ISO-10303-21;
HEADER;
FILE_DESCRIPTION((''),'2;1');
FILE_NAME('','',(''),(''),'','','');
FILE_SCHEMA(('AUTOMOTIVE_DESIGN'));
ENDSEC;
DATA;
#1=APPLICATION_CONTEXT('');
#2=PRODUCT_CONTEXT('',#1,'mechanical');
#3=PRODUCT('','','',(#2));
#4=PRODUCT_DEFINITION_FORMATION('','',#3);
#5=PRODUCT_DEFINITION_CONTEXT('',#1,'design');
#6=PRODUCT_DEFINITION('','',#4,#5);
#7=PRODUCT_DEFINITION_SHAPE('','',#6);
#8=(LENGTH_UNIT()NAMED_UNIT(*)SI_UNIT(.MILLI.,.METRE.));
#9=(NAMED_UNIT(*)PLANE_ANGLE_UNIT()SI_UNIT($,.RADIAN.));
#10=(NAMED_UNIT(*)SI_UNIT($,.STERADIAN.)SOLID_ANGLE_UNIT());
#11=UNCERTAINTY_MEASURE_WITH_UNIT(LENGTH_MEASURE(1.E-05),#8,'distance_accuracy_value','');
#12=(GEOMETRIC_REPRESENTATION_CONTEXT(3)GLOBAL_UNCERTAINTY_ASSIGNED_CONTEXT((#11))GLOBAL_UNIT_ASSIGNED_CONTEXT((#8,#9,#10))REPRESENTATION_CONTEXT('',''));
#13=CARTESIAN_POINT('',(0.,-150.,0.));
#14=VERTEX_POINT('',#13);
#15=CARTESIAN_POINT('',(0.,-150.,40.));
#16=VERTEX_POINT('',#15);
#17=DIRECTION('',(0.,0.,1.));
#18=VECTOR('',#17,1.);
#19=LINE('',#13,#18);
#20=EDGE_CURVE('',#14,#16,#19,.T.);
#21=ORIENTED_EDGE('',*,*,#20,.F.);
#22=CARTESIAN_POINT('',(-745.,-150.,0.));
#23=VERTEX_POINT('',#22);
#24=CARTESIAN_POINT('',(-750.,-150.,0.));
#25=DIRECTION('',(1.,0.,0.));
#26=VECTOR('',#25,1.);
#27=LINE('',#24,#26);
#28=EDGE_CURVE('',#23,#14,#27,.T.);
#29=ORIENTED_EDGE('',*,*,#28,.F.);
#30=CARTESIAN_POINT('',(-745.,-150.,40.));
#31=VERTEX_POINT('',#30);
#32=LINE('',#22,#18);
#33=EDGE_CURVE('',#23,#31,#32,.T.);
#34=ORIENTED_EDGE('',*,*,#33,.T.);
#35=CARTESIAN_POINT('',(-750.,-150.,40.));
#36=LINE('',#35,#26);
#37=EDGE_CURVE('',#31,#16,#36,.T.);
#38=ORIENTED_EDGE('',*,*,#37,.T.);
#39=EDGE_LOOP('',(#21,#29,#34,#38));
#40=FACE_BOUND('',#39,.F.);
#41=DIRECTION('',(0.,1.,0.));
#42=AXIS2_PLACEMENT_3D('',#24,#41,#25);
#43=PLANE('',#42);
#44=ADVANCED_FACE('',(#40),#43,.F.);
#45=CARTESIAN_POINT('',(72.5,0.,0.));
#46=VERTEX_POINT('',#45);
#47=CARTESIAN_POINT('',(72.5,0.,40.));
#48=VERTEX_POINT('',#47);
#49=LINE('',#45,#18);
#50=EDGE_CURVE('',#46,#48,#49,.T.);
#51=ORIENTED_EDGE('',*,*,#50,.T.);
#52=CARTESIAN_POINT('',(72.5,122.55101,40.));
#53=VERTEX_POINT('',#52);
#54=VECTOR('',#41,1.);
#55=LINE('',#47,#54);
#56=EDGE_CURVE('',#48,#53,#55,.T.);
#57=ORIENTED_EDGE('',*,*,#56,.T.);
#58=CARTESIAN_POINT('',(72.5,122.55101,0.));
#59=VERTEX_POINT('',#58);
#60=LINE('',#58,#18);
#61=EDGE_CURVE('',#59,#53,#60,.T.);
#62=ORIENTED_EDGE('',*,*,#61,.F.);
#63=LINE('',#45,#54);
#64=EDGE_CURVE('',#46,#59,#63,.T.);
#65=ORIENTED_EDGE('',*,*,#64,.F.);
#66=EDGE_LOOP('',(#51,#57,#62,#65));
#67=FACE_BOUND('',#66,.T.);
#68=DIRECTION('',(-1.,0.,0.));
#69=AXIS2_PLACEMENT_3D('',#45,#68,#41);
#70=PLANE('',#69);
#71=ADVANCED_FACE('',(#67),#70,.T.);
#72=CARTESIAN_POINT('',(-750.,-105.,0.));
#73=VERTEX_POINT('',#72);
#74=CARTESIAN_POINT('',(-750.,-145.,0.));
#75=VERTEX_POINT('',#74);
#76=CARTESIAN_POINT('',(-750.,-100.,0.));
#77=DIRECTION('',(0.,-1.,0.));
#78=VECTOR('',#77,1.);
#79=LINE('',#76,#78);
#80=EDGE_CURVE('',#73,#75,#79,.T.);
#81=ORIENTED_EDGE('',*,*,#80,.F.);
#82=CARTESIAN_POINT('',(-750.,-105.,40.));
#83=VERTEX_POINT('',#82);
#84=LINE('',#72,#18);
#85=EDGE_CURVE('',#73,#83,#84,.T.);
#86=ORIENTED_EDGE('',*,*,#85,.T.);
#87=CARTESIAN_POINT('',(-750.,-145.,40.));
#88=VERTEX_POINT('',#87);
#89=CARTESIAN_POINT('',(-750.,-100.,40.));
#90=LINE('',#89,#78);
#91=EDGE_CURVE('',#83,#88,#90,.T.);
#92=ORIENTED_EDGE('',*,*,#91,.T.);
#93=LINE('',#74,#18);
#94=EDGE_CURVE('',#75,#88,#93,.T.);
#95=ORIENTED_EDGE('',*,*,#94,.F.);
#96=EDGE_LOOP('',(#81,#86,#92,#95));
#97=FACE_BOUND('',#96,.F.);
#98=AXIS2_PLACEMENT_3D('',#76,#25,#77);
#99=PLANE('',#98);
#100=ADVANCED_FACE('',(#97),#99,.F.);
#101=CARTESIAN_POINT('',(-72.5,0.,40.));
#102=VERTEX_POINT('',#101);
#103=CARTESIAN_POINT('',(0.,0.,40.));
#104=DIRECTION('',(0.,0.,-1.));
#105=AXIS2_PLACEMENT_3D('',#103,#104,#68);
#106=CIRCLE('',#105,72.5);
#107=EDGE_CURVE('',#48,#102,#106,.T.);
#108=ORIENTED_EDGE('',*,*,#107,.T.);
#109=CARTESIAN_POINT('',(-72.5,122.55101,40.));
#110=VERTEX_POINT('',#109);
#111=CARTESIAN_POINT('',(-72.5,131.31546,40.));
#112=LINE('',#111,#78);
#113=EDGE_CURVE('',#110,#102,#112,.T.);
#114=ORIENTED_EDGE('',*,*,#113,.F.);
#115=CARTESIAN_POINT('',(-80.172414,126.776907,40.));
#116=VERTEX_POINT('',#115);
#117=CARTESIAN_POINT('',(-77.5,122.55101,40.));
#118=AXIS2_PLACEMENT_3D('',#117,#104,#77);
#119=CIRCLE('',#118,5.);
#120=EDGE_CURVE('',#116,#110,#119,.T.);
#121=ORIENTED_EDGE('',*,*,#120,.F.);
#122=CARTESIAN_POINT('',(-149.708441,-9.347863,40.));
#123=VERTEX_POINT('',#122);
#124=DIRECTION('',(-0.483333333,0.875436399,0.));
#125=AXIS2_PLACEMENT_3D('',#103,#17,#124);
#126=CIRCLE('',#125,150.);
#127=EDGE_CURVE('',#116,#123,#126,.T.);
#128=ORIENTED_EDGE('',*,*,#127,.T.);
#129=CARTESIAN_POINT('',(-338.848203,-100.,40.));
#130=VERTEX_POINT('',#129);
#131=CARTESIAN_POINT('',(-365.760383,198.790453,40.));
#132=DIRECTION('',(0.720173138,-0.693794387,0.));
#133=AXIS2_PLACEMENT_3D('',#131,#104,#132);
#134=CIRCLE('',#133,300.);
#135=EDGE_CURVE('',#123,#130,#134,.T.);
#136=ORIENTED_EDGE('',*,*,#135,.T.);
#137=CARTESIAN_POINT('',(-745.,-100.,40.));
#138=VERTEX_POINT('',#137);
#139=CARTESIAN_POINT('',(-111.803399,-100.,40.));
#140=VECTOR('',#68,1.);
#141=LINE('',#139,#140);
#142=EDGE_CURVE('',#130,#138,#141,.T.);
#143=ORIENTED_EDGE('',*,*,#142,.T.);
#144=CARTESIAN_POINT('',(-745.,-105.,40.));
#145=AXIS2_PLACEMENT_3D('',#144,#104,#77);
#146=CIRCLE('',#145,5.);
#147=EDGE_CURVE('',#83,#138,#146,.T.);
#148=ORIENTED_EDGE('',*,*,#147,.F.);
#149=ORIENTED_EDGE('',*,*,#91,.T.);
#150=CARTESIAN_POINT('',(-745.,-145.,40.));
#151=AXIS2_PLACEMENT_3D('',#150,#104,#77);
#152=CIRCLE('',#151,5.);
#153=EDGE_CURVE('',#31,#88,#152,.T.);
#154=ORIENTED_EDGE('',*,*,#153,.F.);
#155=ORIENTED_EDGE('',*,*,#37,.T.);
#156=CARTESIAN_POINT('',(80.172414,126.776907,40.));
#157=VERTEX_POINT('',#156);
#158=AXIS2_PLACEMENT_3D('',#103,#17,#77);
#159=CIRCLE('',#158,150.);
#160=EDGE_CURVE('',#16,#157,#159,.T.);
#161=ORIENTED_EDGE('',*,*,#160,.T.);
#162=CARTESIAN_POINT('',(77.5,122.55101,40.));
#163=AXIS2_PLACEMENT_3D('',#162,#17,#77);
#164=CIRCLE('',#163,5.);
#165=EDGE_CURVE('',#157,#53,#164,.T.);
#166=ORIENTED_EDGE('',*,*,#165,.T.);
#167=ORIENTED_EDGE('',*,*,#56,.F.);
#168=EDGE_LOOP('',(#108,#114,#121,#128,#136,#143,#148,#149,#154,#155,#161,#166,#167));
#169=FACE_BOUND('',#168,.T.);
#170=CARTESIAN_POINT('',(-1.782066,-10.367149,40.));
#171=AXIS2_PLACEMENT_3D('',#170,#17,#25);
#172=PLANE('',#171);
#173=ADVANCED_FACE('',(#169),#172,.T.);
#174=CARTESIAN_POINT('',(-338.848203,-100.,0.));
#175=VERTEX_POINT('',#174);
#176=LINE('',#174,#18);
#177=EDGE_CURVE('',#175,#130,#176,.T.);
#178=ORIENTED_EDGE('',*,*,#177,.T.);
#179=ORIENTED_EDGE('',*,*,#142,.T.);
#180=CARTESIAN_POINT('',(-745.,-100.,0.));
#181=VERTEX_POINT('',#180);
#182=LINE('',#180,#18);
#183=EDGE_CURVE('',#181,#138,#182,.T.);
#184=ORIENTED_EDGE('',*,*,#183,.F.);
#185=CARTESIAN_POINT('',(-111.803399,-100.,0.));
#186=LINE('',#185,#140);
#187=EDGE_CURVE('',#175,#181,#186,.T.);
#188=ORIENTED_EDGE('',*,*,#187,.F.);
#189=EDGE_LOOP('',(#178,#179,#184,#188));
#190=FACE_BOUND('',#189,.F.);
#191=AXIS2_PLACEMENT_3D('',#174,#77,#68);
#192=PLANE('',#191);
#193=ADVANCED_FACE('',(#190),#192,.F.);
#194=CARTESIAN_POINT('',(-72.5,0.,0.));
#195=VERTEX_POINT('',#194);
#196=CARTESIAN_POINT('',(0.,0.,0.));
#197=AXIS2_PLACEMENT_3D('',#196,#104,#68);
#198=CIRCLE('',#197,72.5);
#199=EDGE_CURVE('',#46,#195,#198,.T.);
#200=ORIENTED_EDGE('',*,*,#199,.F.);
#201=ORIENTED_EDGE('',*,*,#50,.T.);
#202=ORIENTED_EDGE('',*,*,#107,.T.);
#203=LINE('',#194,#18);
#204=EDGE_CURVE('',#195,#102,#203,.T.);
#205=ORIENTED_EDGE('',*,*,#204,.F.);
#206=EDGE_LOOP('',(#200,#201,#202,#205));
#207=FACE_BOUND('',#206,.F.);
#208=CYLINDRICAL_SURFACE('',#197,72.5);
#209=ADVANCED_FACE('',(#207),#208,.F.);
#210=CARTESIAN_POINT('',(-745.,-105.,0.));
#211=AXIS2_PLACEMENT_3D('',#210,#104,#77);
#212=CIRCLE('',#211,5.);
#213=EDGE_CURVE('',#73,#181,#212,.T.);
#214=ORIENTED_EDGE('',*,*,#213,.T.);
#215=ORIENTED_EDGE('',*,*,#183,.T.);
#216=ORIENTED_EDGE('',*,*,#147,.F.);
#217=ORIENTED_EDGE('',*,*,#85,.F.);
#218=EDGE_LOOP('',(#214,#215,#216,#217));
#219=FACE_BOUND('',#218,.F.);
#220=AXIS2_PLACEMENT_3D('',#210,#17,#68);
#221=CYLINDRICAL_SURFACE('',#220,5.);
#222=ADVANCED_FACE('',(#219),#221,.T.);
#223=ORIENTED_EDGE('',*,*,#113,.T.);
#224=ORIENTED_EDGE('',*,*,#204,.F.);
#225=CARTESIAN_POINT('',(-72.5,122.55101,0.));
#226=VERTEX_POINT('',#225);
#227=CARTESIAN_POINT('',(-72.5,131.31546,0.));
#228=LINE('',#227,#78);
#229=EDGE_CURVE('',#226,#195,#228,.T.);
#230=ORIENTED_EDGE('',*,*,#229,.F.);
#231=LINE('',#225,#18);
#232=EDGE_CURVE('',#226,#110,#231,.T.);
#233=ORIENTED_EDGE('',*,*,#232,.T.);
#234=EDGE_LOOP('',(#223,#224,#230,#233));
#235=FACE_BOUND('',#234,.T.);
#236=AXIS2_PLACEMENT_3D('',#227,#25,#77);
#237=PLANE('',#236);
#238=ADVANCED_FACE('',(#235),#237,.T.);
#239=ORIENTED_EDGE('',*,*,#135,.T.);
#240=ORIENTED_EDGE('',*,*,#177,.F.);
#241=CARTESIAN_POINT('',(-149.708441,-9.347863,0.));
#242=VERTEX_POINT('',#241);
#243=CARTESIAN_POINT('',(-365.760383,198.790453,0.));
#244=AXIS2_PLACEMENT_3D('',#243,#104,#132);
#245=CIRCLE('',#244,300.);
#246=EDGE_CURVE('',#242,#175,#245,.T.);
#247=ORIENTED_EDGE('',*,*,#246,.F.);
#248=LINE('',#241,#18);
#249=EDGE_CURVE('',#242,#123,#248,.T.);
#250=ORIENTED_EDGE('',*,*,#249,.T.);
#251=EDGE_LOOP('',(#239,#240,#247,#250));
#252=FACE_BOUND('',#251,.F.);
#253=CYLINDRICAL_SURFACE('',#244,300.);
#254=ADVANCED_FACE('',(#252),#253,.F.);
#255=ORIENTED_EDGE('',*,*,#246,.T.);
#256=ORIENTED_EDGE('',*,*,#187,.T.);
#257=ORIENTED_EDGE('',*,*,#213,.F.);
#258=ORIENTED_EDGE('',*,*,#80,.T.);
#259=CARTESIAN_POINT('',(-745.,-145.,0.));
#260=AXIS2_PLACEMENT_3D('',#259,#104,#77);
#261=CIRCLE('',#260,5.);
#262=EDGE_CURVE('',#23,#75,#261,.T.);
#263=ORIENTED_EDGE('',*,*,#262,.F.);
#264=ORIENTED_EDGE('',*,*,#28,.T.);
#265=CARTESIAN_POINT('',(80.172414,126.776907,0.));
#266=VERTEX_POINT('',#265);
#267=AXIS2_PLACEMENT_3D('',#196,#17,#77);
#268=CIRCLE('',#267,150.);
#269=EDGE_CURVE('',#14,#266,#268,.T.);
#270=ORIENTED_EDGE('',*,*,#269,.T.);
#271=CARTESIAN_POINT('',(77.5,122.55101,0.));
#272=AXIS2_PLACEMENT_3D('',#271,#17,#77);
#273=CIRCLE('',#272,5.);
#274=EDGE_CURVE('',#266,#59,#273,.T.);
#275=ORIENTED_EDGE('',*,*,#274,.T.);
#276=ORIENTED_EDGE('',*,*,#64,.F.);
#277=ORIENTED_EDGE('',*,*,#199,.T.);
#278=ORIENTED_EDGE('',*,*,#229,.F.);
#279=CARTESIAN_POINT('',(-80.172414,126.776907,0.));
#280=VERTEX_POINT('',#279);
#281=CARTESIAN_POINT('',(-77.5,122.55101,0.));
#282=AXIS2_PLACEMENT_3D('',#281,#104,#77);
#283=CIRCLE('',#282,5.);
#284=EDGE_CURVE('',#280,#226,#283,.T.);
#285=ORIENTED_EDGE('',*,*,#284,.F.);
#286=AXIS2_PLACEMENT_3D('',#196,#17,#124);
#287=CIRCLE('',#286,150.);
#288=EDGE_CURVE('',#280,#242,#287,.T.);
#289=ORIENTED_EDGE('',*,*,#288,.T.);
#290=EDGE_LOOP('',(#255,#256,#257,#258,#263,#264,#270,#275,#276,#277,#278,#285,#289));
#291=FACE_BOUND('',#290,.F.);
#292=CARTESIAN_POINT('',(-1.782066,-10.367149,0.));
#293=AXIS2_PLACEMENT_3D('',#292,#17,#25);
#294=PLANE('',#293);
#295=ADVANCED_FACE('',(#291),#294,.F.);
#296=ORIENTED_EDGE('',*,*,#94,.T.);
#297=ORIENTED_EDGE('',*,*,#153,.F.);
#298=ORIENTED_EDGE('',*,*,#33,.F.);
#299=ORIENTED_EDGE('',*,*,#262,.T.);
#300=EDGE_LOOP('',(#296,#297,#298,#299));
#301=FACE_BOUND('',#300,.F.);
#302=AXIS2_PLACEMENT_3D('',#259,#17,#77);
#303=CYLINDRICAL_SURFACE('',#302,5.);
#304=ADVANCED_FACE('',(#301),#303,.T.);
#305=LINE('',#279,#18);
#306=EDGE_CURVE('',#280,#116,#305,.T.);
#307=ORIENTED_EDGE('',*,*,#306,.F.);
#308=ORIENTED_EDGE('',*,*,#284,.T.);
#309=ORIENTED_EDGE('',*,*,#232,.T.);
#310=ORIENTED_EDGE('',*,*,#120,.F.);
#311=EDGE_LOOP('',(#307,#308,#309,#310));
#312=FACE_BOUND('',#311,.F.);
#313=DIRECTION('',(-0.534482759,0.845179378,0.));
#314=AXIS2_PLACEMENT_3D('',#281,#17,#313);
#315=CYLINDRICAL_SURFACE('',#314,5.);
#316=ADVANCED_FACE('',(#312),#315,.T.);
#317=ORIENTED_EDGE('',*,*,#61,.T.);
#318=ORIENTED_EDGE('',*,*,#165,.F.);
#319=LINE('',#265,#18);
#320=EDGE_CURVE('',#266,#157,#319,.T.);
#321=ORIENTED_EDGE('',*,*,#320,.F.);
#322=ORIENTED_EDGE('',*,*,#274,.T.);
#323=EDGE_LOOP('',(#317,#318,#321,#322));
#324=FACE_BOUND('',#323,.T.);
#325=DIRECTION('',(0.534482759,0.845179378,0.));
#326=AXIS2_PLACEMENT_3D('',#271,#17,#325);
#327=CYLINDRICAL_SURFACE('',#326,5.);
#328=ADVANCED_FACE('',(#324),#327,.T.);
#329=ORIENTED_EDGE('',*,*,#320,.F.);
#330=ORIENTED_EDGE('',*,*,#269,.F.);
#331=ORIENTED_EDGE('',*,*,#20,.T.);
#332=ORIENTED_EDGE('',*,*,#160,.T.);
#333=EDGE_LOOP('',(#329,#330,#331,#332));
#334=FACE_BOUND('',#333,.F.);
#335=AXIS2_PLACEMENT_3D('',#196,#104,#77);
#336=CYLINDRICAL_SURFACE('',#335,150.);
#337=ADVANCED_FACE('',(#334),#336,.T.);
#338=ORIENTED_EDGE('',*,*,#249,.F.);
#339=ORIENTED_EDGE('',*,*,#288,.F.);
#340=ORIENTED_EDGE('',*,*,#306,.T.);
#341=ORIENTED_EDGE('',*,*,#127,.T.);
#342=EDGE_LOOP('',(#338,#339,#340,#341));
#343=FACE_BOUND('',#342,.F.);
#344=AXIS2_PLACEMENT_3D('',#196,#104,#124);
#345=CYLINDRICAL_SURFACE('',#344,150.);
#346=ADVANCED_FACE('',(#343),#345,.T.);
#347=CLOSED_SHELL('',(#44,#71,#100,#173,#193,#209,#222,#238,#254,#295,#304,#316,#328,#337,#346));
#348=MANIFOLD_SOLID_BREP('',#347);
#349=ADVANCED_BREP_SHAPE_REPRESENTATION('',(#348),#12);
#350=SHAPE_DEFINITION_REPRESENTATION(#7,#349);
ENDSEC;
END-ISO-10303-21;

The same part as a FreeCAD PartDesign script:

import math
import FreeCAD as App
import Part
import Sketcher
Q = App.Units.Quantity


def edges_at(feature, points):
    """Names of the edges that pass closest to the given points."""
    edges = feature.Shape.Edges
    near = lambda p: min(range(len(edges)), key=lambda i: edges[i].distToShape(Part.Vertex(*p))[0])
    return sorted({f"Edge{near(p) + 1}" for p in points})

doc = App.newDocument("Part")
body = doc.addObject("PartDesign::Body", "Body")

# Sketch on XY plane
sketch1 = body.newObject("Sketcher::SketchObject", "Sketch")
sketch1.AttachmentSupport = (doc.getObject("XY_Plane"), [""])
sketch1.MapMode = "FlatFace"
sketch1.addGeometry([
    Part.LineSegment(App.Vector(-750, -150, 0), App.Vector(0, -150, 0)),  # 0
    Part.ArcOfCircle(Part.Circle(App.Vector(0, 0, 0), App.Vector(0, 0, 1), 150), math.radians(-90), math.radians(118.903335)),  # 1
    Part.ArcOfCircle(Part.Circle(App.Vector(0, 0, 0), App.Vector(0, 0, 1), 150), math.radians(118.903335), math.radians(183.572936)),  # 2
    Part.ArcOfCircle(Part.Circle(App.Vector(-365.760383, 198.790453, 0), App.Vector(0, 0, 1), 300), math.radians(-84.853234), math.radians(-43.931223)),  # 3
    Part.LineSegment(App.Vector(-338.848203, -100, 0), App.Vector(-750, -100, 0)),  # 4
    Part.LineSegment(App.Vector(-750, -100, 0), App.Vector(-750, -150, 0)),  # 5
    Part.Circle(App.Vector(0, 0, 0), App.Vector(0, 0, 1), 72.5),  # 6
], False)
sketch1.addConstraint([
    Sketcher.Constraint("Tangent", 0, 2, 1, 1),
    Sketcher.Constraint("Tangent", 1, 2, 2, 1),
    Sketcher.Constraint("Coincident", 2, 2, 3, 2),
    Sketcher.Constraint("Coincident", 3, 1, 4, 1),
    Sketcher.Constraint("Coincident", 4, 2, 5, 1),
    Sketcher.Constraint("Coincident", 5, 2, 0, 1),
    Sketcher.Constraint("Horizontal", 0),
    Sketcher.Constraint("Horizontal", 4),
    Sketcher.Constraint("Vertical", 5),
    Sketcher.Constraint("Coincident", 1, 3, -1, 1),
    Sketcher.Constraint("Coincident", 6, 3, -1, 1),
    Sketcher.Constraint("Equal", 1, 2),
    Sketcher.Constraint("Diameter", 6, Q("145 mm")),
    Sketcher.Constraint("Radius", 1, Q("150 mm")),
    Sketcher.Constraint("Radius", 3, Q("300 mm")),
    Sketcher.Constraint("DistanceX", 0, 1, 0, 2, Q("750 mm")),
    Sketcher.Constraint("DistanceY", 5, 2, 5, 1, Q("50 mm")),
    Sketcher.Constraint("DistanceX", 1, 2, -1, 1, Q("72.5 mm")),
    Sketcher.Constraint("DistanceX", 4, 2, 4, 1, Q("411.151797 mm")),
    Sketcher.Constraint("DistanceX", 2, 2, -1, 1, Q("149.708441 mm")),
])
pad1 = body.newObject("PartDesign::Pad", "Pad")
pad1.Profile = sketch1
pad1.Length = 40

# Sketch on XY plane
sketch2 = body.newObject("Sketcher::SketchObject", "Sketch001")
sketch2.AttachmentSupport = (doc.getObject("XY_Plane"), [""])
sketch2.MapMode = "FlatFace"
sketch2.addGeometry([
    Part.ArcOfCircle(Part.Circle(App.Vector(0, 0, 0), App.Vector(0, 0, 1), 72.5), math.radians(0), math.radians(180)),
    Part.LineSegment(App.Vector(72.5, 0, 0), App.Vector(72.5, 131.31546, 0)),
    Part.ArcOfCircle(Part.Circle(App.Vector(0, 0, 0), App.Vector(0, 0, 1), 150), math.radians(61.096665), math.radians(118.903335)),
    Part.LineSegment(App.Vector(-72.5, 131.31546, 0), App.Vector(-72.5, 0, 0)),
], False)
sketch2.addConstraint([
    Sketcher.Constraint("Tangent", 0, 1, 1, 1),
    Sketcher.Constraint("Coincident", 1, 2, 2, 1),
    Sketcher.Constraint("Coincident", 2, 2, 3, 1),
    Sketcher.Constraint("Tangent", 3, 2, 0, 2),
    Sketcher.Constraint("Vertical", 1),
    Sketcher.Constraint("Vertical", 3),
    Sketcher.Constraint("Coincident", 0, 3, -1, 1),
    Sketcher.Constraint("Coincident", 2, 3, -1, 1),
    Sketcher.Constraint("Radius", 2, Q("150 mm")),
    Sketcher.Constraint("Radius", 0, Q("72.5 mm")),
])
pocket1 = body.newObject("PartDesign::Pocket", "Pocket")
pocket1.Profile = sketch2
pocket1.Length = 40
pocket1.Reversed = True
doc.recompute()

fillet = body.newObject("PartDesign::Fillet", "Fillet")
fillet.Base = (pocket1, edges_at(pocket1, [
    (-750, -150, 20),
    (-72.5, 131.315, 20),
    (72.5, 131.315, 20),
    (-750, -100, 20),
]))
fillet.Radius = 5

doc.recompute()
